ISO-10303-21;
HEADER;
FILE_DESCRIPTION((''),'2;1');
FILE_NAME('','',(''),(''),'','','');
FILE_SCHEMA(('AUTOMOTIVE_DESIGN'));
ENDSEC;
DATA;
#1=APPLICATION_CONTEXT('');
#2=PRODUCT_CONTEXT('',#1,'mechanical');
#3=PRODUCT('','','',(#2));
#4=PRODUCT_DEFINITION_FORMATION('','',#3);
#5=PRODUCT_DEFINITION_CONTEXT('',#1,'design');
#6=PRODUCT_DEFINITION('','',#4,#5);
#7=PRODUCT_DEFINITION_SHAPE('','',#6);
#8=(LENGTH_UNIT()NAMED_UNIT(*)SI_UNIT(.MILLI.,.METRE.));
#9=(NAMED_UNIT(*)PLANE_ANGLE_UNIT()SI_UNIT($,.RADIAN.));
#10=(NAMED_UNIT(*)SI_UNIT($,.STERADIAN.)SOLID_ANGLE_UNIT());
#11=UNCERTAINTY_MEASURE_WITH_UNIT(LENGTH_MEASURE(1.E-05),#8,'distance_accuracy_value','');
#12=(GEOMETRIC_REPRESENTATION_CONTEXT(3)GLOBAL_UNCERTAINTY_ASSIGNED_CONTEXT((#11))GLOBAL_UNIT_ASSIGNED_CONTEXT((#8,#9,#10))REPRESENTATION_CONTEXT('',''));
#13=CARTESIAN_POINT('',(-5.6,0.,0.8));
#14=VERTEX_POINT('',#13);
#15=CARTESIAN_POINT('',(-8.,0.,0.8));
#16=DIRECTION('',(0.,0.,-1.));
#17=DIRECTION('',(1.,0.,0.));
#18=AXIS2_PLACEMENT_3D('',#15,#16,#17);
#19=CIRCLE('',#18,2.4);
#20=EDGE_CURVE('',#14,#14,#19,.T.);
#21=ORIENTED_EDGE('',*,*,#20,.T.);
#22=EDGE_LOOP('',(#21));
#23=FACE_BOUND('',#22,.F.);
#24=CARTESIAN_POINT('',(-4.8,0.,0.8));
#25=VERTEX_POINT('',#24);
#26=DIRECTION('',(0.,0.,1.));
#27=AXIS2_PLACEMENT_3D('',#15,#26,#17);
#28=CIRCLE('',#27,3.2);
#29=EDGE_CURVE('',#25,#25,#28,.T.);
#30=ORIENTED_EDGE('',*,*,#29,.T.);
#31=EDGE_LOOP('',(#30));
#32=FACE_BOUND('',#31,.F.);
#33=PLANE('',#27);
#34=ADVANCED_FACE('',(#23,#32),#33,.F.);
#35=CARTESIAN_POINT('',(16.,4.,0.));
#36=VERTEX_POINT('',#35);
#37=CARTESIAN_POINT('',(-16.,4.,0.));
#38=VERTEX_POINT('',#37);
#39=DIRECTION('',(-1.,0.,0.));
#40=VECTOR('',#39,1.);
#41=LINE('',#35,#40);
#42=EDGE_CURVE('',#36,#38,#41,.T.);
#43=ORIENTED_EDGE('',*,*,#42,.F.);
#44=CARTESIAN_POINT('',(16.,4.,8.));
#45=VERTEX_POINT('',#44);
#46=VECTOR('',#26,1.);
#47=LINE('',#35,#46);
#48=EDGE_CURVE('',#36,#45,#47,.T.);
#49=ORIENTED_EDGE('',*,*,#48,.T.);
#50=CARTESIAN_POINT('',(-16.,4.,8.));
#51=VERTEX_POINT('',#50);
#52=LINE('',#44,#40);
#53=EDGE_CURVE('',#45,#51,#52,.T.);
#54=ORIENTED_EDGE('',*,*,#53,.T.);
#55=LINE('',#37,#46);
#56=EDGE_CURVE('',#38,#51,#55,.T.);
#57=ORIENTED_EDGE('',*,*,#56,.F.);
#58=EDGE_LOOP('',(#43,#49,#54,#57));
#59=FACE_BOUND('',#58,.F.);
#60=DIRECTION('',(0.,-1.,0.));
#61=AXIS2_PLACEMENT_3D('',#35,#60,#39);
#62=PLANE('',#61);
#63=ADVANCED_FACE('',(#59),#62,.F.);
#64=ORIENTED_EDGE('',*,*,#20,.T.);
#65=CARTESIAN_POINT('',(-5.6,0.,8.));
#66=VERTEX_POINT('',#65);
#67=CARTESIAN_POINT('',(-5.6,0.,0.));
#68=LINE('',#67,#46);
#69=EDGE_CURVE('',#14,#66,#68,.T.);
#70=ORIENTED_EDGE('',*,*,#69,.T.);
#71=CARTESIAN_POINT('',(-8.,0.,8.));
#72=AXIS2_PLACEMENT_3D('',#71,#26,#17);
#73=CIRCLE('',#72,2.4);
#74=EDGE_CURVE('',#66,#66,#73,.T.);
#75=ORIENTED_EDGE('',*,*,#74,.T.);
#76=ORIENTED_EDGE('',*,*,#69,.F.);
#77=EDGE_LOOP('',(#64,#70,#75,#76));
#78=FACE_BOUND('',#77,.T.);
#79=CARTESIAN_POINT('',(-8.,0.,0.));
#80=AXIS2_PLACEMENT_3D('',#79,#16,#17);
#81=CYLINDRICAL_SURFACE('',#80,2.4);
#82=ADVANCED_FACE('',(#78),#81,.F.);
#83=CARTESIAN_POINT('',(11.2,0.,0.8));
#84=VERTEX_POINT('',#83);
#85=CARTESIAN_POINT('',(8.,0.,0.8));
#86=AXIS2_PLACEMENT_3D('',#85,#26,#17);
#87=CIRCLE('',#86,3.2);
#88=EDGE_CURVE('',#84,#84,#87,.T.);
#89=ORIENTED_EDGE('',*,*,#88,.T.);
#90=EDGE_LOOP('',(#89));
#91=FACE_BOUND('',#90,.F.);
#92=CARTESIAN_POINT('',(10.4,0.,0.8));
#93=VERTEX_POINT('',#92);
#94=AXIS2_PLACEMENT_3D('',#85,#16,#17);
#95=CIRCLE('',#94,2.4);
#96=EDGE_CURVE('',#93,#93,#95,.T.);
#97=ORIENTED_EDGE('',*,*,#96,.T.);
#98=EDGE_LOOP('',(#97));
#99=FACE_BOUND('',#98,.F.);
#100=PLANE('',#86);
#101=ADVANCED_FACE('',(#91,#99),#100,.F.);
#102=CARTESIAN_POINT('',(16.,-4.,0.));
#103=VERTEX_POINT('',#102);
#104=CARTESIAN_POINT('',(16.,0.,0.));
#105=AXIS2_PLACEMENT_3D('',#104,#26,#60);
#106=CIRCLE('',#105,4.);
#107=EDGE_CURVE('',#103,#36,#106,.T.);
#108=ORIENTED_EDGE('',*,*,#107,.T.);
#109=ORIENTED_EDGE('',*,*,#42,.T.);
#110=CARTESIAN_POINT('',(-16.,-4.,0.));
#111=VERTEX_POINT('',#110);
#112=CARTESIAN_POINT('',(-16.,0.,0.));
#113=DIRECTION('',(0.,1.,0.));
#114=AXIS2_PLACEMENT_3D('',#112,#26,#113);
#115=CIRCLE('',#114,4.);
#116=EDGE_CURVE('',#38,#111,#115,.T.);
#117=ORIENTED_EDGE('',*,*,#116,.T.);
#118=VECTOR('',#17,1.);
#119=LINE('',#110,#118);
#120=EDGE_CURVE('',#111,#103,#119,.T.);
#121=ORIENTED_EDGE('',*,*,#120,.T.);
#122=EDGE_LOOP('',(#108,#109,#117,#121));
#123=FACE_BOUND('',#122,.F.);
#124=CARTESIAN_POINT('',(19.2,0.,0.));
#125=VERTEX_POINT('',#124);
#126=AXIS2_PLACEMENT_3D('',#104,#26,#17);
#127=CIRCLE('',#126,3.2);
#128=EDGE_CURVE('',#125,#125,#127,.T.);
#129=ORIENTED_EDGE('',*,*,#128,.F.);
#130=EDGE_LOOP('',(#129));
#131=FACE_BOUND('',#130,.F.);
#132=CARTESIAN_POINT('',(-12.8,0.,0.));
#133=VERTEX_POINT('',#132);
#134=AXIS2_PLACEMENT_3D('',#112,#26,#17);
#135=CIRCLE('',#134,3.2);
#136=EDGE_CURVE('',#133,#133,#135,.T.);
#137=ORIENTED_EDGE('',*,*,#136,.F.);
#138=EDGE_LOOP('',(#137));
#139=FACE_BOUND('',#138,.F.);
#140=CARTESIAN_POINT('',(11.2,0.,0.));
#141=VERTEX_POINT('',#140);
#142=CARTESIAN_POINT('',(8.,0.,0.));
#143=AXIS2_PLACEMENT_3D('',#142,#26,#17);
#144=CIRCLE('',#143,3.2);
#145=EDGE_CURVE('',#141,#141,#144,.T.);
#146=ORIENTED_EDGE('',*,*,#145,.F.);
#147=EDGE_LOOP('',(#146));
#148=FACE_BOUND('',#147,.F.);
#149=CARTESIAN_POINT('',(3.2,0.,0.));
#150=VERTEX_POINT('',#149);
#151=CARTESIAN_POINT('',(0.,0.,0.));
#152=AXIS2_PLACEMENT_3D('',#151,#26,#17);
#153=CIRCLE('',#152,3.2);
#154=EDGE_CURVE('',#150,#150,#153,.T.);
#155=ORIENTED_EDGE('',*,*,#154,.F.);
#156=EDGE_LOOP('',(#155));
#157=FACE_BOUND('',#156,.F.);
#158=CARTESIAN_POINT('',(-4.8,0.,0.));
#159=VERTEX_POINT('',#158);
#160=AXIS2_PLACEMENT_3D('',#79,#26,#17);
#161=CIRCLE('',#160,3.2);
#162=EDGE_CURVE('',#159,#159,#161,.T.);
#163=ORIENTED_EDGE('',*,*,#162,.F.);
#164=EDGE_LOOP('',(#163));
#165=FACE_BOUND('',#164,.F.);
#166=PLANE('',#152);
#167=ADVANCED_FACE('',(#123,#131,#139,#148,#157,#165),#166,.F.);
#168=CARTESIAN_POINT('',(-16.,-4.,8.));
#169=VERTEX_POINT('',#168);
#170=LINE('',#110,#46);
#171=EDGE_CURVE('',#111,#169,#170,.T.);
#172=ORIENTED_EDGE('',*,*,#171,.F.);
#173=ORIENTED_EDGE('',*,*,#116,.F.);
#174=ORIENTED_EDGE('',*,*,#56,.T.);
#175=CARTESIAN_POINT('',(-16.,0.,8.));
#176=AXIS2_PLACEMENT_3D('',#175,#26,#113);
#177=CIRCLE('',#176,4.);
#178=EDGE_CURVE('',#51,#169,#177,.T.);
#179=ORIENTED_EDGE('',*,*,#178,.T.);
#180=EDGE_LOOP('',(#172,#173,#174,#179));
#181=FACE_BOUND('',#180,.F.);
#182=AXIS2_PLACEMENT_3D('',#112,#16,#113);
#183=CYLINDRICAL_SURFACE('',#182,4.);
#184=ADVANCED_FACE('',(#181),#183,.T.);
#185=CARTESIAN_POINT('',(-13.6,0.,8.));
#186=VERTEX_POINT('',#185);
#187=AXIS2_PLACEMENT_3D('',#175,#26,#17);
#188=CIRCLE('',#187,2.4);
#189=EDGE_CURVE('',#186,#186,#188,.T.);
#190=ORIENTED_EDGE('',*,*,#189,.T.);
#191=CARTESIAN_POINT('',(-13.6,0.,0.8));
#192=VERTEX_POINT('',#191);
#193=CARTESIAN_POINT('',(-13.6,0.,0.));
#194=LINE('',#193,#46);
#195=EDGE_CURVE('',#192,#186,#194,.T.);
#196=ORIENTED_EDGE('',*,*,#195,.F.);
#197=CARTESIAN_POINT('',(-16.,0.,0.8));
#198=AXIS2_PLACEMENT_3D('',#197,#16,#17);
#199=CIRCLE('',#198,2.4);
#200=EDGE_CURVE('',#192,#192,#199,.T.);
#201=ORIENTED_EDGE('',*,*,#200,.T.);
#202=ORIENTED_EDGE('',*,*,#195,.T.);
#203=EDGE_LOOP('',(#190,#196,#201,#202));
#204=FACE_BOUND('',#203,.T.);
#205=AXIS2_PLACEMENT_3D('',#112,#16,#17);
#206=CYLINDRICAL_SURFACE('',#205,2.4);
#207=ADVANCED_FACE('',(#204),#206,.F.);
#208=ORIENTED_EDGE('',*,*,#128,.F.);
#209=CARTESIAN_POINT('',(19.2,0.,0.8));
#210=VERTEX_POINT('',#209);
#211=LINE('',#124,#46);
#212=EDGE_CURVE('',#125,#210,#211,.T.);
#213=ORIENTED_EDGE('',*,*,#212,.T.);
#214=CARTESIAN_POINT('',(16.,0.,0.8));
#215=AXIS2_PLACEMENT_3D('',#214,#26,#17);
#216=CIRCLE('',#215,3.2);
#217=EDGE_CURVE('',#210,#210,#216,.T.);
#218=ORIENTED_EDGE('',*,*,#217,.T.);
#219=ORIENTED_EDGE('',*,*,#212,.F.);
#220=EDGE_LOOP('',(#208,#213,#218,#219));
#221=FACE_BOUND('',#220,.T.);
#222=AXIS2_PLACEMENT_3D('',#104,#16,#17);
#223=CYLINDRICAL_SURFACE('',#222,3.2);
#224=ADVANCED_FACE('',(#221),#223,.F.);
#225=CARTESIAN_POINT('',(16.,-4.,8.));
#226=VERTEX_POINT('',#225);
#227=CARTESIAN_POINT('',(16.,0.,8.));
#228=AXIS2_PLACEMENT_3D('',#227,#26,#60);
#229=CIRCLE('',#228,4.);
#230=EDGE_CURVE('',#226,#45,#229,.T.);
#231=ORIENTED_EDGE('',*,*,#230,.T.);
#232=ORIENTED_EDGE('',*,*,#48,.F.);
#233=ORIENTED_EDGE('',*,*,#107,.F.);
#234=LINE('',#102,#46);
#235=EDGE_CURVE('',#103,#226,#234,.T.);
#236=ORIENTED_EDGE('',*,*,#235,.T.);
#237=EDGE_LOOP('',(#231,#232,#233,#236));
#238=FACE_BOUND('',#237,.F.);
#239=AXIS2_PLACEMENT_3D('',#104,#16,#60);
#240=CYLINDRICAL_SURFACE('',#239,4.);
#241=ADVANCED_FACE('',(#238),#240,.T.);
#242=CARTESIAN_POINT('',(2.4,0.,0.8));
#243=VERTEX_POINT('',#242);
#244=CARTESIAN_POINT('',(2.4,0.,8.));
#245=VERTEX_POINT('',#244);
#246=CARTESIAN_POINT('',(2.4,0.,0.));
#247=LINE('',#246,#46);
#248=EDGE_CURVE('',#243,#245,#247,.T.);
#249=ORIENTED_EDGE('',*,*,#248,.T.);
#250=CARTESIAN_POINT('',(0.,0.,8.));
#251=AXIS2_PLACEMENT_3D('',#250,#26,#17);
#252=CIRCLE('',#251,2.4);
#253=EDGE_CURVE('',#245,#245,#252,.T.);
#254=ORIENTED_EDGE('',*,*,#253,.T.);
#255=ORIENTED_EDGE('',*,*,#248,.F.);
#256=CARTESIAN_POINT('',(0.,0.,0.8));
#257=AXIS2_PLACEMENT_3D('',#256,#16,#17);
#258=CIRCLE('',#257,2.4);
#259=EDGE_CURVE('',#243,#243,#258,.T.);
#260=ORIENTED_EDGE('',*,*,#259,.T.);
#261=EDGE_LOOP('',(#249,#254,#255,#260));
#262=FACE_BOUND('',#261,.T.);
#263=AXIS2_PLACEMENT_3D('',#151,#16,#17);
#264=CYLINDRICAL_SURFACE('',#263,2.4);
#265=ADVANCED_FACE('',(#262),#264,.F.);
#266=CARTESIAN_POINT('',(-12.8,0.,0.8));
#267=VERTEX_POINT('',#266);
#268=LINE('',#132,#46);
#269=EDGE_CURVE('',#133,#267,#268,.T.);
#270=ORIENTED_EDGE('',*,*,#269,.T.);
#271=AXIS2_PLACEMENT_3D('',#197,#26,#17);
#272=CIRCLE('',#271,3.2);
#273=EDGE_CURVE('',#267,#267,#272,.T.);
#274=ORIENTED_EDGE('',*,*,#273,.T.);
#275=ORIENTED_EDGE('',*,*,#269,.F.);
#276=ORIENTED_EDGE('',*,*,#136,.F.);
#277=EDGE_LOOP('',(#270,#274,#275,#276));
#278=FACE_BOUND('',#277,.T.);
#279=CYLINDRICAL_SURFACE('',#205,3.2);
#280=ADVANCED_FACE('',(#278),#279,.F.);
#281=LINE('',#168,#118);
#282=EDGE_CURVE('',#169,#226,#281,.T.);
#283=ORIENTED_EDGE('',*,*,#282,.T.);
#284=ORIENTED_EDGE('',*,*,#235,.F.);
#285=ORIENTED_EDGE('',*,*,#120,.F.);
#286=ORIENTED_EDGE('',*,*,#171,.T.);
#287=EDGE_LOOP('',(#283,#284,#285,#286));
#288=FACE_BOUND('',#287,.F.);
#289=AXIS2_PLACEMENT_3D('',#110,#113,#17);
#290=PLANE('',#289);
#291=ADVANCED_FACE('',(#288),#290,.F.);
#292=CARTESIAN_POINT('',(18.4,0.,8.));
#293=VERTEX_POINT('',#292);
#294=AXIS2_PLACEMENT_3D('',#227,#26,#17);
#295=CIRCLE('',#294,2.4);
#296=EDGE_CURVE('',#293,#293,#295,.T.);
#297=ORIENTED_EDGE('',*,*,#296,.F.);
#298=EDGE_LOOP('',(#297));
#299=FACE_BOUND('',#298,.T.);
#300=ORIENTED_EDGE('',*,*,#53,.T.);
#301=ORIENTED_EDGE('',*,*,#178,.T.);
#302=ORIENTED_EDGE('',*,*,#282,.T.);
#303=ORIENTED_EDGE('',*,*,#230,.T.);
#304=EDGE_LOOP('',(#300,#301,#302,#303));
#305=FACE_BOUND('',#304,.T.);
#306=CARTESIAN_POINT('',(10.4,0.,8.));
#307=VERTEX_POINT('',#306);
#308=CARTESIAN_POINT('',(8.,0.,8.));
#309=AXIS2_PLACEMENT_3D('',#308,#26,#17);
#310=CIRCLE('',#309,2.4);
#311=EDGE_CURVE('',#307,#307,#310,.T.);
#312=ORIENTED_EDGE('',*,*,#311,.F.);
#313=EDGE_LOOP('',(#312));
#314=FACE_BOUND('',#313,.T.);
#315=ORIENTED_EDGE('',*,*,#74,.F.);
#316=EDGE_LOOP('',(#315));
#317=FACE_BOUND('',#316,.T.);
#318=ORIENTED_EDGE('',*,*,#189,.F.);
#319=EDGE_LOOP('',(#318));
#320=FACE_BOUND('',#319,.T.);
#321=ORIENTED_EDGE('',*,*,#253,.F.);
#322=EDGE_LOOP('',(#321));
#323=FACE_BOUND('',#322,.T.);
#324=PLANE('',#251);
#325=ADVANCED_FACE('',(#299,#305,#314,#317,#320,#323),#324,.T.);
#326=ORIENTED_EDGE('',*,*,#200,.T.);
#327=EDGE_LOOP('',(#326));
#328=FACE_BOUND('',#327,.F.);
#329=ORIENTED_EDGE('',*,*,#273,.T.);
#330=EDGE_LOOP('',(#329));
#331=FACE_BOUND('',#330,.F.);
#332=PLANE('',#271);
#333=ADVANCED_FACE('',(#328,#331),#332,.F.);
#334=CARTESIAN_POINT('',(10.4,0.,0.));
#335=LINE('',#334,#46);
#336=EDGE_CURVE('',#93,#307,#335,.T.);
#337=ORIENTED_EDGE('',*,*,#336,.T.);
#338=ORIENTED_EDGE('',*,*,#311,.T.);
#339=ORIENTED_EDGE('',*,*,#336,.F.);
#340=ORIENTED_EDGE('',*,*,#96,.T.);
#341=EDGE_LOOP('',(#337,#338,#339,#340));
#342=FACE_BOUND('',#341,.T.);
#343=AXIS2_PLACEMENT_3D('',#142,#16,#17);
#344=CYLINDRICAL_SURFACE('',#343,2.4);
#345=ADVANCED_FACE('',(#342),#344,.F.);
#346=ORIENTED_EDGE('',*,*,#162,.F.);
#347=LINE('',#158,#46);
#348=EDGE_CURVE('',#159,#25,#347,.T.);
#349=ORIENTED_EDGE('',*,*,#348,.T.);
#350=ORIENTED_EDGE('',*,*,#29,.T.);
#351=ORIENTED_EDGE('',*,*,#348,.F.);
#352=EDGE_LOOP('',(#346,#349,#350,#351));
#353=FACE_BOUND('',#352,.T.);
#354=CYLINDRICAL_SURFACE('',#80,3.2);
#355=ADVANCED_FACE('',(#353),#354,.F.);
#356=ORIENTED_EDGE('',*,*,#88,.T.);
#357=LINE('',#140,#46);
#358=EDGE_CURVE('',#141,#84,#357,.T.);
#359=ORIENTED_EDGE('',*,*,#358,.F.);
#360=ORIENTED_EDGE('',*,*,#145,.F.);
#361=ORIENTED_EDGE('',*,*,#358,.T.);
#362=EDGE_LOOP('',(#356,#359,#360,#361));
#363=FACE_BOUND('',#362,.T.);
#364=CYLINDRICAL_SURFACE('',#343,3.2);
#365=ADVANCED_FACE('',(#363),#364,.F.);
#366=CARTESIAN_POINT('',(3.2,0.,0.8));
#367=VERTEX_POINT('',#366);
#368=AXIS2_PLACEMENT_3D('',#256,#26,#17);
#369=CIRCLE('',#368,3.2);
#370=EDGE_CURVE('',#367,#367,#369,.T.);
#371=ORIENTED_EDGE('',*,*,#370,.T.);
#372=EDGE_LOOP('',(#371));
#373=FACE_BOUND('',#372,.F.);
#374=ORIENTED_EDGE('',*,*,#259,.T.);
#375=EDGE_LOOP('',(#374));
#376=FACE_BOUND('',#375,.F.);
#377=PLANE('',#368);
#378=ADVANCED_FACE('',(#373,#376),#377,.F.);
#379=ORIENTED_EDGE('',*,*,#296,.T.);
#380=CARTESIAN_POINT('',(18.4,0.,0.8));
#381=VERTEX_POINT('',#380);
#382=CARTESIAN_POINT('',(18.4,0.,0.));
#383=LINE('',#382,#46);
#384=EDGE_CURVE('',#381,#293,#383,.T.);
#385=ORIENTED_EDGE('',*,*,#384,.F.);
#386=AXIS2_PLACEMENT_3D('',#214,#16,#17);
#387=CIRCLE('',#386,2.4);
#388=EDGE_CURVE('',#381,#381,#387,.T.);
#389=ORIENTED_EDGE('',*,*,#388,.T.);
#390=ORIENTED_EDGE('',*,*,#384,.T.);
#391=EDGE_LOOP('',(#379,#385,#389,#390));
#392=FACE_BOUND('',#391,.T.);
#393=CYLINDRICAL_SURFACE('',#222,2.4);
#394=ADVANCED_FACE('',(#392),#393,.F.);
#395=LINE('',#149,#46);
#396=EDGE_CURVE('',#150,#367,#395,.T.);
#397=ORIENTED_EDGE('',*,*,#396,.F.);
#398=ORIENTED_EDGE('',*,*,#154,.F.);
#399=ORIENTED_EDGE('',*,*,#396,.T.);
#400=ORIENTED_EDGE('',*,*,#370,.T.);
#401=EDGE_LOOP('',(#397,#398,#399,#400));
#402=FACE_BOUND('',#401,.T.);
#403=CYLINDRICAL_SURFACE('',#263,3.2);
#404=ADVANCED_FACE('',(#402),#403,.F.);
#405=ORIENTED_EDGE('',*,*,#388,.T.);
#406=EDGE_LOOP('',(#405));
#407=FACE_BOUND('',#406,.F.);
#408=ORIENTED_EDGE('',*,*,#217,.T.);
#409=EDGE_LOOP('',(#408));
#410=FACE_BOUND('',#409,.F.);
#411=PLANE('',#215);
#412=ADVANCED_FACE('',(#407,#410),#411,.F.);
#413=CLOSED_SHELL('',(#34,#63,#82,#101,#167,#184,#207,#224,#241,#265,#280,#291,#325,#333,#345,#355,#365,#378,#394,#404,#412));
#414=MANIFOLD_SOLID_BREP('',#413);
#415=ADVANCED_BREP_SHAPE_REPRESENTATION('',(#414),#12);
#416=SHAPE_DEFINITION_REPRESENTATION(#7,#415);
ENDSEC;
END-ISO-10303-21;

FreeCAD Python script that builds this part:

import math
import FreeCAD as App
import Part
import Sketcher
Q = App.Units.Quantity

doc = App.newDocument("Part")
params = doc.addObject("Spreadsheet::Sheet", "Params")
for row, (alias, value) in enumerate([
    ("sketch1_radius", "4 mm"),
    ("sketch1_diameter", "4.8 mm"),
    ("sketch1_width", "32 mm"),
    ("pad1_length", "8 mm"),
    ("sketch2_diameter", "6.4 mm"),
    ("pocket1_length", "0.8 mm"),
], start=1):
    params.set(f"A{row}", alias)
    params.set(f"B{row}", "=" + value)
    params.setAlias(f"B{row}", alias)

body = doc.addObject("PartDesign::Body", "Body")

sketch1 = body.newObject("Sketcher::SketchObject", "Sketch")
sketch1.AttachmentSupport = (doc.getObject("XY_Plane"), [""])
sketch1.MapMode = "FlatFace"
sketch1.addGeometry([
    Part.ArcOfCircle(Part.Circle(App.Vector(-16, 0, 0), App.Vector(0, 0, 1), 4), math.radians(90), math.radians(270)),
    Part.LineSegment(App.Vector(-16, -4, 0), App.Vector(16, -4, 0)),
    Part.ArcOfCircle(Part.Circle(App.Vector(16, 0, 0), App.Vector(0, 0, 1), 4), math.radians(-90), math.radians(90)),
    Part.LineSegment(App.Vector(16, 4, 0), App.Vector(-16, 4, 0)),
    Part.Circle(App.Vector(-16, 0, 0), App.Vector(0, 0, 1), 2.4),
    Part.Circle(App.Vector(-8, 0, 0), App.Vector(0, 0, 1), 2.4),
    Part.Circle(App.Vector(0, 0, 0), App.Vector(0, 0, 1), 2.4),
    Part.Circle(App.Vector(8, 0, 0), App.Vector(0, 0, 1), 2.4),
    Part.Circle(App.Vector(16, 0, 0), App.Vector(0, 0, 1), 2.4),
], False)
sketch1.addConstraint([
    Sketcher.Constraint("Tangent", 0, 2, 1, 1),
    Sketcher.Constraint("Tangent", 1, 2, 2, 1),
    Sketcher.Constraint("Tangent", 2, 2, 3, 1),
    Sketcher.Constraint("Tangent", 3, 2, 0, 1),
    Sketcher.Constraint("Horizontal", 1),
    Sketcher.Constraint("Horizontal", 3),
    Sketcher.Constraint("Coincident", 6, 3, -1, 1),
    Sketcher.Constraint("Coincident", 4, 3, 0, 3),
    Sketcher.Constraint("Coincident", 8, 3, 2, 3),
    Sketcher.Constraint("Equal", 4, 5),
    Sketcher.Constraint("Equal", 5, 6),
    Sketcher.Constraint("Equal", 6, 7),
    Sketcher.Constraint("Equal", 7, 8),
    Sketcher.Constraint("Symmetric", 0, 3, 2, 3, -1, 1),
    Sketcher.Constraint("Symmetric", 5, 3, 7, 3, -1, 1),
    Sketcher.Constraint("PointOnObject", 5, 3, -1),
    Sketcher.Constraint("Radius", 0, Q("4 mm")),
    Sketcher.Constraint("Diameter", 4, Q("4.8 mm")),
    Sketcher.Constraint("DistanceX", 1, 1, 1, 2, Q("32 mm")),
    Sketcher.Constraint("DistanceX", 5, 3, -1, 1, Q("8 mm")),
])
sketch1.setExpression("Constraints[16]", "Params.sketch1_radius")
sketch1.setExpression("Constraints[17]", "Params.sketch1_diameter")
sketch1.setExpression("Constraints[18]", "Params.sketch1_width")
pad1 = body.newObject("PartDesign::Pad", "Pad")
pad1.Profile = sketch1
pad1.setExpression("Length", "Params.pad1_length")

sketch2 = body.newObject("Sketcher::SketchObject", "Sketch001")
sketch2.AttachmentSupport = (doc.getObject("XY_Plane"), [""])
sketch2.MapMode = "FlatFace"
sketch2.addGeometry([
    Part.Circle(App.Vector(0, 0, 0), App.Vector(0, 0, 1), 3.2),
    Part.Circle(App.Vector(-16, 0, 0), App.Vector(0, 0, 1), 3.2),
    Part.Circle(App.Vector(-8, 0, 0), App.Vector(0, 0, 1), 3.2),
    Part.Circle(App.Vector(8, 0, 0), App.Vector(0, 0, 1), 3.2),
    Part.Circle(App.Vector(16, 0, 0), App.Vector(0, 0, 1), 3.2),
], False)
sketch2.addConstraint([
    Sketcher.Constraint("Coincident", 0, 3, -1, 1),
    Sketcher.Constraint("Equal", 0, 1),
    Sketcher.Constraint("Equal", 1, 2),
    Sketcher.Constraint("Equal", 2, 3),
    Sketcher.Constraint("Equal", 3, 4),
    Sketcher.Constraint("Symmetric", 2, 3, 3, 3, -1, 1),
    Sketcher.Constraint("Symmetric", 1, 3, 4, 3, -1, 1),
    Sketcher.Constraint("PointOnObject", 1, 3, -1),
    Sketcher.Constraint("PointOnObject", 2, 3, -1),
    Sketcher.Constraint("Diameter", 0, Q("6.4 mm")),
    Sketcher.Constraint("DistanceX", 1, 3, -1, 1, Q("16 mm")),
    Sketcher.Constraint("DistanceX", 2, 3, -1, 1, Q("8 mm")),
])
sketch2.setExpression("Constraints[9]", "Params.sketch2_diameter")
pocket1 = body.newObject("PartDesign::Pocket", "Pocket")
pocket1.Profile = sketch2
pocket1.setExpression("Length", "Params.pocket1_length")
pocket1.Reversed = True

doc.recompute()
